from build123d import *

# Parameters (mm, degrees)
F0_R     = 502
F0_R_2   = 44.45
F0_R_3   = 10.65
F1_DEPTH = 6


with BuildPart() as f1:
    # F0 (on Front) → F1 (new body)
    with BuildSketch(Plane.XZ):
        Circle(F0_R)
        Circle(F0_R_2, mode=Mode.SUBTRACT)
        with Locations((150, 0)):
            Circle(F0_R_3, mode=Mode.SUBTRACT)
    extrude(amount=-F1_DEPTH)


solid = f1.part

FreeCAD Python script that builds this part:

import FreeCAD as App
import Part
import Sketcher
Q = App.Units.Quantity

doc = App.newDocument("Part")
params = doc.addObject("Spreadsheet::Sheet", "Params")
for row, (alias, value) in enumerate([
    ("sketch1_diameter", "1004 mm"),
    ("sketch1_diameter2", "88.9 mm"),
    ("sketch1_diameter3", "21.3 mm"),
    ("pad1_length", "6 mm"),
], start=1):
    params.set(f"A{row}", alias)
    params.set(f"B{row}", "=" + value)
    params.setAlias(f"B{row}", alias)

body = doc.addObject("PartDesign::Body", "Body")

sketch1 = body.newObject("Sketcher::SketchObject", "Sketch")
sketch1.AttachmentSupport = (doc.getObject("XZ_Plane"), [""])
sketch1.MapMode = "FlatFace"
sketch1.addGeometry(Part.Circle(App.Vector(0, 0, 0), App.Vector(0, 0, 1), 502), False)
sketch1.addGeometry(Part.Circle(App.Vector(0, 0, 0), App.Vector(0, 0, 1), 44), False)
sketch1.addGeometry(Part.Circle(App.Vector(150, 0, 0), App.Vector(0, 0, 1), 11), False)
sketch1.addConstraint(Sketcher.Constraint("Coincident", 0, 3, -1, 1))
sketch1.addConstraint(Sketcher.Constraint("Coincident", 1, 3, -1, 1))
sketch1.addConstraint(Sketcher.Constraint("PointOnObject", 2, 3, -1))
sketch1.addConstraint(Sketcher.Constraint("Diameter", 0, Q("1004 mm")))
sketch1.addConstraint(Sketcher.Constraint("Diameter", 1, Q("88.9 mm")))
sketch1.addConstraint(Sketcher.Constraint("Diameter", 2, Q("21.3 mm")))
sketch1.addConstraint(Sketcher.Constraint("DistanceX", -1, 1, 2, 3, Q("150 mm")))
sketch1.setExpression("Constraints[3]", "Params.sketch1_diameter")
sketch1.setExpression("Constraints[4]", "Params.sketch1_diameter2")
sketch1.setExpression("Constraints[5]", "Params.sketch1_diameter3")
pad1 = body.newObject("PartDesign::Pad", "Pad")
pad1.Profile = sketch1
pad1.setExpression("Length", "Params.pad1_length")
pad1.Reversed = True

doc.recompute()
